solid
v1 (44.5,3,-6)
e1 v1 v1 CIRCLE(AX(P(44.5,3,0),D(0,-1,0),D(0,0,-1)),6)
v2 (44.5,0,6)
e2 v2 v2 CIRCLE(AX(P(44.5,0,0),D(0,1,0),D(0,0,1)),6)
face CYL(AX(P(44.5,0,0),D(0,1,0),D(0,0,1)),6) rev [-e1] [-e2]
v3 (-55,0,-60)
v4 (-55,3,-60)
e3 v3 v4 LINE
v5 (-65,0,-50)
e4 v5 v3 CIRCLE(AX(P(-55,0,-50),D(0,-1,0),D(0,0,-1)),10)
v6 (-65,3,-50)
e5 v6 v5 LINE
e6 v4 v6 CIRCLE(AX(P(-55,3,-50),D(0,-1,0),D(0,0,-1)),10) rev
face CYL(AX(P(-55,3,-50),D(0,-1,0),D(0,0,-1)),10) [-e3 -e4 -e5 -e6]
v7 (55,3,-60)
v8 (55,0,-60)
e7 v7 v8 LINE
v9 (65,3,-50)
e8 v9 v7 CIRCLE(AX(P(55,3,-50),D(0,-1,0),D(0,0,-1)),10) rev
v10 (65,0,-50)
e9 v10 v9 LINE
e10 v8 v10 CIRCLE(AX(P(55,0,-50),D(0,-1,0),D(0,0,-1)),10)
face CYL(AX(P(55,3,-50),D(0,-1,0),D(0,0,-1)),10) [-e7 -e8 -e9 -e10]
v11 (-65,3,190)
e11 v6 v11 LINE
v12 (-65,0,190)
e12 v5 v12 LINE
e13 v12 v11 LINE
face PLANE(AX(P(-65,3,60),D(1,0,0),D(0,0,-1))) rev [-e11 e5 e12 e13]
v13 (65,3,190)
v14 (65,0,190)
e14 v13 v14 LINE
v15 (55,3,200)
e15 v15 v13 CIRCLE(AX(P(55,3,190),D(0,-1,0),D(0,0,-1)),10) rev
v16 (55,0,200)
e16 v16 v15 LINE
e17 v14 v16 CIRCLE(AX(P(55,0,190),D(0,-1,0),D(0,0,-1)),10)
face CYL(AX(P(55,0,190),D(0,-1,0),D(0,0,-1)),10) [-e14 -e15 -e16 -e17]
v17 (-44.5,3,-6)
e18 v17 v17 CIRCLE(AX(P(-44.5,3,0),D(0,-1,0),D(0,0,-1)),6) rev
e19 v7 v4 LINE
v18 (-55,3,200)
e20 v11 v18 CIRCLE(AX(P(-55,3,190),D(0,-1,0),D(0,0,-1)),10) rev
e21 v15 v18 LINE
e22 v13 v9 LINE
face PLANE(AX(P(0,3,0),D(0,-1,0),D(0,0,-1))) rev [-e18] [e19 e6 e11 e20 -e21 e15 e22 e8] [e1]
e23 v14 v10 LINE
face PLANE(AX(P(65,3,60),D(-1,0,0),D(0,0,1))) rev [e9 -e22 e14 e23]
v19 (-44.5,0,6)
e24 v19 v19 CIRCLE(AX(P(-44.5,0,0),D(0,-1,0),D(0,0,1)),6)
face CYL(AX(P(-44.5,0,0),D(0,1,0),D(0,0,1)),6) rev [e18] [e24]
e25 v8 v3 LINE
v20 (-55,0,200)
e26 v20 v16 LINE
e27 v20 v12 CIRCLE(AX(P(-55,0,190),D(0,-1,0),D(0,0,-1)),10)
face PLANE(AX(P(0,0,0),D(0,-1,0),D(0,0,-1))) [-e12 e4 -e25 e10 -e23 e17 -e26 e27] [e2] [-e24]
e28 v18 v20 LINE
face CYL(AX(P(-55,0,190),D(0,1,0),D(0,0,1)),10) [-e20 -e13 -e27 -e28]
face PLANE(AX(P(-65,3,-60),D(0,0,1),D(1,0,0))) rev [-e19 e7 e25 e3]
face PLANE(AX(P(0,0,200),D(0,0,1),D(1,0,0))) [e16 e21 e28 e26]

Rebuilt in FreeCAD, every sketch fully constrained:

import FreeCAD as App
import Part
import Sketcher

V = App.Vector
Q = App.Units.Quantity


def edges_at(feature, points):
    """Names of the edges that pass closest to the given points."""
    edges = feature.Shape.Edges
    near = lambda p: min(range(len(edges)), key=lambda i: edges[i].distToShape(Part.Vertex(*p))[0])
    return sorted({f"Edge{near(p) + 1}" for p in points})

doc = App.newDocument("Part")
body = doc.addObject("PartDesign::Body", "Body")

# Sketch on XZ plane
sketch1 = doc.addObject("Sketcher::SketchObject", "Sketch")
body.addObject(sketch1)
sketch1.AttachmentSupport = (doc.XZ_Plane, [""])
sketch1.MapMode = "FlatFace"
sketch1.addGeometry([
    Part.LineSegment(V(-65, -60, 0), V(-65, 60, 0)),
    Part.LineSegment(V(-65, 60, 0), V(65, 60, 0)),
    Part.LineSegment(V(65, 60, 0), V(65, -60, 0)),
    Part.LineSegment(V(65, -60, 0), V(-65, -60, 0)),
], False)
sketch1.addConstraint([
    Sketcher.Constraint("Coincident", 0, 2, 1, 1),
    Sketcher.Constraint("Coincident", 1, 2, 2, 1),
    Sketcher.Constraint("Coincident", 2, 2, 3, 1),
    Sketcher.Constraint("Coincident", 3, 2, 0, 1),
    Sketcher.Constraint("Vertical", 0),
    Sketcher.Constraint("Horizontal", 1),
    Sketcher.Constraint("Vertical", 2),
    Sketcher.Constraint("Horizontal", 3),
    Sketcher.Constraint("Symmetric", 0, 2, 2, 2, -1, 1),
    Sketcher.Constraint("DistanceX", 1, 1, 1, 2, Q("130 mm")),
    Sketcher.Constraint("DistanceY", 0, 1, 0, 2, Q("120 mm")),
])
pad1 = doc.addObject("PartDesign::Pad", "Pad")
body.addObject(pad1)
pad1.Profile = sketch1
pad1.Length = 3
pad1.Reversed = True

# Sketch on XZ plane
sketch2 = doc.addObject("Sketcher::SketchObject", "Sketch001")
body.addObject(sketch2)
sketch2.AttachmentSupport = (doc.XZ_Plane, [""])
sketch2.MapMode = "FlatFace"
sketch2.AttachmentOffset = App.Placement(V(0, 0, 1), App.Rotation())
sketch2.addGeometry(Part.Circle(V(44, 0, 0), V(0, 0, 1), 6), False)
sketch2.addConstraint([
    Sketcher.Constraint("PointOnObject", 0, 3, -1),
    Sketcher.Constraint("Diameter", 0, Q("12 mm")),
    Sketcher.Constraint("DistanceX", -1, 1, 0, 3, Q("44.5 mm")),
])
pocket1 = doc.addObject("PartDesign::Pocket", "Pocket")
body.addObject(pocket1)
pocket1.Profile = sketch2
pocket1.Length = 5
doc.recompute()

mirrored = doc.addObject("PartDesign::Mirrored", "Mirrored")
body.addObject(mirrored)
mirrored.Originals = [pocket1]
mirrored.MirrorPlane = (doc.YZ_Plane, [""])
body.Tip = mirrored

# Sketch on XY plane
sketch3 = doc.addObject("Sketcher::SketchObject", "Sketch002")
body.addObject(sketch3)
sketch3.AttachmentSupport = (doc.XY_Plane, [""])
sketch3.MapMode = "FlatFace"
sketch3.AttachmentOffset = App.Placement(V(0, 0, 60), App.Rotation())
sketch3.addGeometry([
    Part.LineSegment(V(-65, 3, 0), V(-65, 0, 0)),
    Part.LineSegment(V(-65, 0, 0), V(65, 0, 0)),
    Part.LineSegment(V(65, 0, 0), V(65, 3, 0)),
    Part.LineSegment(V(65, 3, 0), V(-65, 3, 0)),
], False)
sketch3.addConstraint([
    Sketcher.Constraint("Coincident", 0, 2, 1, 1),
    Sketcher.Constraint("Coincident", 1, 2, 2, 1),
    Sketcher.Constraint("Coincident", 2, 2, 3, 1),
    Sketcher.Constraint("Coincident", 3, 2, 0, 1),
    Sketcher.Constraint("Vertical", 0),
    Sketcher.Constraint("Horizontal", 1),
    Sketcher.Constraint("Vertical", 2),
    Sketcher.Constraint("Horizontal", 3),
    Sketcher.Constraint("Symmetric", 0, 2, 1, 2, -1, 1),
    Sketcher.Constraint("DistanceX", 1, 1, 1, 2, Q("130 mm")),
    Sketcher.Constraint("DistanceY", 0, 2, 0, 1, Q("3 mm")),
])
pad2 = doc.addObject("PartDesign::Pad", "Pad001")
body.addObject(pad2)
pad2.Profile = sketch3
pad2.Length = 140
doc.recompute()

fillet = doc.addObject("PartDesign::Fillet", "Fillet")
body.addObject(fillet)
fillet.Base = (pad2, edges_at(pad2, [
    (-65, 1.5, 200),
    (65, 1.5, 200),
    (-65, 1.5, -60),
    (65, 1.5, -60),
]))
fillet.Radius = 10

doc.recompute()
